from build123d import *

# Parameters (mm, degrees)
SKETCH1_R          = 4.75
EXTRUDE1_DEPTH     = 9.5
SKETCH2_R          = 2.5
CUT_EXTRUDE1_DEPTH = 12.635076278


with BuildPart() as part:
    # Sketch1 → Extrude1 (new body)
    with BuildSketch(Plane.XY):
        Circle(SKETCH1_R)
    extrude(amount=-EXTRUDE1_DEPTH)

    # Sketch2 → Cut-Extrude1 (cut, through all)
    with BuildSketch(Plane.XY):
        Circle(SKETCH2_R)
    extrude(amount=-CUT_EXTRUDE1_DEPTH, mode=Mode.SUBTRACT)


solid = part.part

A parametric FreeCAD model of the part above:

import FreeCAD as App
import Part
import Sketcher

doc = App.newDocument("Part")
body = doc.addObject("PartDesign::Body", "Body")

# Sketch on XY plane
sketch1 = body.newObject("Sketcher::SketchObject", "Sketch")
sketch1.AttachmentSupport = (doc.getObject("XY_Plane"), [""])
sketch1.MapMode = "FlatFace"
sketch1.addGeometry(Part.Circle(App.Vector(0, 0, 0), App.Vector(0, 0, 1), 4.75), False)
sketch1.addConstraint(Sketcher.Constraint("Coincident", 0, 3, -1, 1))
sketch1.addConstraint(Sketcher.Constraint("Diameter", 0, 9.5))
pad1 = body.newObject("PartDesign::Pad", "Pad")
pad1.Profile = sketch1
pad1.Length = 9.5
pad1.Reversed = True

# Sketch on XY plane
sketch2 = body.newObject("Sketcher::SketchObject", "Sketch001")
sketch2.AttachmentSupport = (doc.getObject("XY_Plane"), [""])
sketch2.MapMode = "FlatFace"
sketch2.addGeometry(Part.Circle(App.Vector(0, 0, 0), App.Vector(0, 0, 1), 2.5), False)
sketch2.addConstraint(Sketcher.Constraint("Coincident", 0, 3, -1, 1))
sketch2.addConstraint(Sketcher.Constraint("Diameter", 0, 5.0))
pocket1 = body.newObject("PartDesign::Pocket", "Pocket")
pocket1.Profile = sketch2
pocket1.Type = "ThroughAll"

doc.recompute()
